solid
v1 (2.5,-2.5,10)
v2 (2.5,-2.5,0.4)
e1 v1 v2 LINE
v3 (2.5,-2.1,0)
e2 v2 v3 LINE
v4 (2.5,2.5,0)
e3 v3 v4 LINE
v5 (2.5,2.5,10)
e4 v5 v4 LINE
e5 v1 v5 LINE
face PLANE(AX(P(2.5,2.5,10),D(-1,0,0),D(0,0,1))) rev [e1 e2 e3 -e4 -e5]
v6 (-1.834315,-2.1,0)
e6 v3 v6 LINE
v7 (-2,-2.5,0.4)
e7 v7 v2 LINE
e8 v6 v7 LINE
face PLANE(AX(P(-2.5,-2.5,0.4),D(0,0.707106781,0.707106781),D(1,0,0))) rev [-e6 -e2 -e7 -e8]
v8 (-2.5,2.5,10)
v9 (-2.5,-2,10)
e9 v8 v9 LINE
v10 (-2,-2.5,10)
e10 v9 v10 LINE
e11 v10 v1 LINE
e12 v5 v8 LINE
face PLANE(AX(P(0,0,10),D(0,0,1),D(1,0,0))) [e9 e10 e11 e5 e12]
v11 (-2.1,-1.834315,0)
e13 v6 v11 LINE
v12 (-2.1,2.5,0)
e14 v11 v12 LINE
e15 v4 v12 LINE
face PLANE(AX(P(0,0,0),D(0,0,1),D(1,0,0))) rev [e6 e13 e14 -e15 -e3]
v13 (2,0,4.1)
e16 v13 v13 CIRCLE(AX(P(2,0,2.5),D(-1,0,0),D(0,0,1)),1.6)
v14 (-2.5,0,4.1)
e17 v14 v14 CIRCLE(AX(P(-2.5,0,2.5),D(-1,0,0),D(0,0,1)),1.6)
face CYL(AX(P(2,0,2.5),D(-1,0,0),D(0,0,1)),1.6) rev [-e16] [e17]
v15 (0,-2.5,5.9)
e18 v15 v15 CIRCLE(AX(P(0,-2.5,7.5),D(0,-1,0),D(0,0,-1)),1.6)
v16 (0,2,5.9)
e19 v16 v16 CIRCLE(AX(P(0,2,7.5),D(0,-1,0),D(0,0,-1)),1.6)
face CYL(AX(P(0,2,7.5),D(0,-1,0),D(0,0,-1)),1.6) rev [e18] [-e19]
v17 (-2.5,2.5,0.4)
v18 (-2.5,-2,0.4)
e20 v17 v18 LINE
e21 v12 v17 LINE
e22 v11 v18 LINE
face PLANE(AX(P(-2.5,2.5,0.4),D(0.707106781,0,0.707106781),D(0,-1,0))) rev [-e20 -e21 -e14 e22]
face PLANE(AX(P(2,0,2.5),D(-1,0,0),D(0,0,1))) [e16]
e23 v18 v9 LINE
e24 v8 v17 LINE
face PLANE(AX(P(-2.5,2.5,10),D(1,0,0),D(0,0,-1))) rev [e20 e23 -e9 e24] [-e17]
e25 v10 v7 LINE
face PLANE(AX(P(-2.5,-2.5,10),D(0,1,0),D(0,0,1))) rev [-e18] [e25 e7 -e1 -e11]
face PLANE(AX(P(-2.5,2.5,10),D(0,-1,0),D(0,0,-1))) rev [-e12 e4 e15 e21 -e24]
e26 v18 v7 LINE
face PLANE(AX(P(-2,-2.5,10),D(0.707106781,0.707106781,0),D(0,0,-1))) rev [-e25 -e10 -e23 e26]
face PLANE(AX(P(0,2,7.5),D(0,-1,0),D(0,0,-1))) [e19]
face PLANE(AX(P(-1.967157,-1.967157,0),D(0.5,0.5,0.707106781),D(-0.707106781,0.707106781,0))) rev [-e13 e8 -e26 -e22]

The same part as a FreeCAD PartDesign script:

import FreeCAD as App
import Part
import Sketcher
from FreeCAD import Vector
Q = App.Units.Quantity


def edges_at(feature, points):
    """Names of the edges that pass closest to the given points."""
    edges = feature.Shape.Edges
    near = lambda p: min(range(len(edges)), key=lambda i: edges[i].distToShape(Part.Vertex(*p))[0])
    return sorted({f"Edge{near(p) + 1}" for p in points})


def add_polygon(sketch, points):
    """Adds a closed chain of lines whose ends are joined by coincident constraints."""
    first, n = sketch.GeometryCount, len(points)
    for a, b in zip(points, points[1:] + points[:1]):
        sketch.addGeometry(Part.LineSegment(App.Vector(*a, 0), App.Vector(*b, 0)), False)
    for i in range(n):
        sketch.addConstraint(Sketcher.Constraint("Coincident", first + i, 2, first + (i + 1) % n, 1))

doc = App.newDocument("Part")
body = doc.addObject("PartDesign::Body", "Body")

# Sketch on XY plane
sketch1 = body.newObject("Sketcher::SketchObject", "Sketch")
sketch1.AttachmentSupport = (doc.getObject("XY_Plane"), [""])
sketch1.MapMode = "FlatFace"
add_polygon(sketch1, [(-2.5, 2.5), (-2.5, -2.5), (2.5, -2.5), (2.5, 2.5)])  # lines 0-3
sketch1.addConstraint([
    Sketcher.Constraint("Vertical", 0),
    Sketcher.Constraint("Horizontal", 1),
    Sketcher.Constraint("Vertical", 2),
    Sketcher.Constraint("Horizontal", 3),
    Sketcher.Constraint("Symmetric", 0, 2, 2, 2, -1, 1),
    Sketcher.Constraint("Equal", 3, 0),
    Sketcher.Constraint("DistanceX", 1, 1, 1, 2, Q("5 mm")),
])
pad1 = body.newObject("PartDesign::Pad", "Pad")
pad1.Profile = sketch1
pad1.Length = 10

# Sketch on XZ plane
sketch2 = body.newObject("Sketcher::SketchObject", "Sketch001")
sketch2.AttachmentSupport = (doc.getObject("XZ_Plane"), [""])
sketch2.MapMode = "FlatFace"
sketch2.AttachmentOffset = App.Placement(Vector(0, 0, 2.5), App.Rotation())
sketch2.addGeometry(Part.Circle(Vector(0, 7.5, 0), Vector(0, 0, 1), 1.6), False)
sketch2.addConstraint([
    Sketcher.Constraint("PointOnObject", 0, 3, -2),
    Sketcher.Constraint("Diameter", 0, Q("3.2 mm")),
    Sketcher.Constraint("DistanceY", -1, 1, 0, 3, Q("7.5 mm")),
])
pocket1 = body.newObject("PartDesign::Pocket", "Pocket")
pocket1.Profile = sketch2
pocket1.Length = 4.5

# Sketch on YZ plane
sketch3 = body.newObject("Sketcher::SketchObject", "Sketch002")
sketch3.AttachmentSupport = (doc.getObject("YZ_Plane"), [""])
sketch3.MapMode = "FlatFace"
sketch3.AttachmentOffset = App.Placement(Vector(0, 0, -2.5), App.Rotation())
sketch3.addGeometry(Part.Circle(Vector(0, 2.5, 0), Vector(0, 0, 1), 1.6), False)
sketch3.addConstraint([
    Sketcher.Constraint("PointOnObject", 0, 3, -2),
    Sketcher.Constraint("Diameter", 0, Q("3.2 mm")),
    Sketcher.Constraint("DistanceY", -1, 1, 0, 3, Q("2.5 mm")),
])
pocket2 = body.newObject("PartDesign::Pocket", "Pocket001")
pocket2.Profile = sketch3
pocket2.Length = 4.5
pocket2.Reversed = True
doc.recompute()

chamfer = body.newObject("PartDesign::Chamfer", "Chamfer")
chamfer.Base = (pocket2, edges_at(pocket2, [(-2.5, -2.5, 5)]))
chamfer.Size = 0.5
doc.recompute()

chamfer2 = body.newObject("PartDesign::Chamfer", "Chamfer001")
chamfer2.Base = (chamfer, edges_at(chamfer, [(0.25, -2.5, 0), (-2.25, -2.25, 0), (-2.5, 0.25, 0)]))
chamfer2.Size = 0.4

doc.recompute()
